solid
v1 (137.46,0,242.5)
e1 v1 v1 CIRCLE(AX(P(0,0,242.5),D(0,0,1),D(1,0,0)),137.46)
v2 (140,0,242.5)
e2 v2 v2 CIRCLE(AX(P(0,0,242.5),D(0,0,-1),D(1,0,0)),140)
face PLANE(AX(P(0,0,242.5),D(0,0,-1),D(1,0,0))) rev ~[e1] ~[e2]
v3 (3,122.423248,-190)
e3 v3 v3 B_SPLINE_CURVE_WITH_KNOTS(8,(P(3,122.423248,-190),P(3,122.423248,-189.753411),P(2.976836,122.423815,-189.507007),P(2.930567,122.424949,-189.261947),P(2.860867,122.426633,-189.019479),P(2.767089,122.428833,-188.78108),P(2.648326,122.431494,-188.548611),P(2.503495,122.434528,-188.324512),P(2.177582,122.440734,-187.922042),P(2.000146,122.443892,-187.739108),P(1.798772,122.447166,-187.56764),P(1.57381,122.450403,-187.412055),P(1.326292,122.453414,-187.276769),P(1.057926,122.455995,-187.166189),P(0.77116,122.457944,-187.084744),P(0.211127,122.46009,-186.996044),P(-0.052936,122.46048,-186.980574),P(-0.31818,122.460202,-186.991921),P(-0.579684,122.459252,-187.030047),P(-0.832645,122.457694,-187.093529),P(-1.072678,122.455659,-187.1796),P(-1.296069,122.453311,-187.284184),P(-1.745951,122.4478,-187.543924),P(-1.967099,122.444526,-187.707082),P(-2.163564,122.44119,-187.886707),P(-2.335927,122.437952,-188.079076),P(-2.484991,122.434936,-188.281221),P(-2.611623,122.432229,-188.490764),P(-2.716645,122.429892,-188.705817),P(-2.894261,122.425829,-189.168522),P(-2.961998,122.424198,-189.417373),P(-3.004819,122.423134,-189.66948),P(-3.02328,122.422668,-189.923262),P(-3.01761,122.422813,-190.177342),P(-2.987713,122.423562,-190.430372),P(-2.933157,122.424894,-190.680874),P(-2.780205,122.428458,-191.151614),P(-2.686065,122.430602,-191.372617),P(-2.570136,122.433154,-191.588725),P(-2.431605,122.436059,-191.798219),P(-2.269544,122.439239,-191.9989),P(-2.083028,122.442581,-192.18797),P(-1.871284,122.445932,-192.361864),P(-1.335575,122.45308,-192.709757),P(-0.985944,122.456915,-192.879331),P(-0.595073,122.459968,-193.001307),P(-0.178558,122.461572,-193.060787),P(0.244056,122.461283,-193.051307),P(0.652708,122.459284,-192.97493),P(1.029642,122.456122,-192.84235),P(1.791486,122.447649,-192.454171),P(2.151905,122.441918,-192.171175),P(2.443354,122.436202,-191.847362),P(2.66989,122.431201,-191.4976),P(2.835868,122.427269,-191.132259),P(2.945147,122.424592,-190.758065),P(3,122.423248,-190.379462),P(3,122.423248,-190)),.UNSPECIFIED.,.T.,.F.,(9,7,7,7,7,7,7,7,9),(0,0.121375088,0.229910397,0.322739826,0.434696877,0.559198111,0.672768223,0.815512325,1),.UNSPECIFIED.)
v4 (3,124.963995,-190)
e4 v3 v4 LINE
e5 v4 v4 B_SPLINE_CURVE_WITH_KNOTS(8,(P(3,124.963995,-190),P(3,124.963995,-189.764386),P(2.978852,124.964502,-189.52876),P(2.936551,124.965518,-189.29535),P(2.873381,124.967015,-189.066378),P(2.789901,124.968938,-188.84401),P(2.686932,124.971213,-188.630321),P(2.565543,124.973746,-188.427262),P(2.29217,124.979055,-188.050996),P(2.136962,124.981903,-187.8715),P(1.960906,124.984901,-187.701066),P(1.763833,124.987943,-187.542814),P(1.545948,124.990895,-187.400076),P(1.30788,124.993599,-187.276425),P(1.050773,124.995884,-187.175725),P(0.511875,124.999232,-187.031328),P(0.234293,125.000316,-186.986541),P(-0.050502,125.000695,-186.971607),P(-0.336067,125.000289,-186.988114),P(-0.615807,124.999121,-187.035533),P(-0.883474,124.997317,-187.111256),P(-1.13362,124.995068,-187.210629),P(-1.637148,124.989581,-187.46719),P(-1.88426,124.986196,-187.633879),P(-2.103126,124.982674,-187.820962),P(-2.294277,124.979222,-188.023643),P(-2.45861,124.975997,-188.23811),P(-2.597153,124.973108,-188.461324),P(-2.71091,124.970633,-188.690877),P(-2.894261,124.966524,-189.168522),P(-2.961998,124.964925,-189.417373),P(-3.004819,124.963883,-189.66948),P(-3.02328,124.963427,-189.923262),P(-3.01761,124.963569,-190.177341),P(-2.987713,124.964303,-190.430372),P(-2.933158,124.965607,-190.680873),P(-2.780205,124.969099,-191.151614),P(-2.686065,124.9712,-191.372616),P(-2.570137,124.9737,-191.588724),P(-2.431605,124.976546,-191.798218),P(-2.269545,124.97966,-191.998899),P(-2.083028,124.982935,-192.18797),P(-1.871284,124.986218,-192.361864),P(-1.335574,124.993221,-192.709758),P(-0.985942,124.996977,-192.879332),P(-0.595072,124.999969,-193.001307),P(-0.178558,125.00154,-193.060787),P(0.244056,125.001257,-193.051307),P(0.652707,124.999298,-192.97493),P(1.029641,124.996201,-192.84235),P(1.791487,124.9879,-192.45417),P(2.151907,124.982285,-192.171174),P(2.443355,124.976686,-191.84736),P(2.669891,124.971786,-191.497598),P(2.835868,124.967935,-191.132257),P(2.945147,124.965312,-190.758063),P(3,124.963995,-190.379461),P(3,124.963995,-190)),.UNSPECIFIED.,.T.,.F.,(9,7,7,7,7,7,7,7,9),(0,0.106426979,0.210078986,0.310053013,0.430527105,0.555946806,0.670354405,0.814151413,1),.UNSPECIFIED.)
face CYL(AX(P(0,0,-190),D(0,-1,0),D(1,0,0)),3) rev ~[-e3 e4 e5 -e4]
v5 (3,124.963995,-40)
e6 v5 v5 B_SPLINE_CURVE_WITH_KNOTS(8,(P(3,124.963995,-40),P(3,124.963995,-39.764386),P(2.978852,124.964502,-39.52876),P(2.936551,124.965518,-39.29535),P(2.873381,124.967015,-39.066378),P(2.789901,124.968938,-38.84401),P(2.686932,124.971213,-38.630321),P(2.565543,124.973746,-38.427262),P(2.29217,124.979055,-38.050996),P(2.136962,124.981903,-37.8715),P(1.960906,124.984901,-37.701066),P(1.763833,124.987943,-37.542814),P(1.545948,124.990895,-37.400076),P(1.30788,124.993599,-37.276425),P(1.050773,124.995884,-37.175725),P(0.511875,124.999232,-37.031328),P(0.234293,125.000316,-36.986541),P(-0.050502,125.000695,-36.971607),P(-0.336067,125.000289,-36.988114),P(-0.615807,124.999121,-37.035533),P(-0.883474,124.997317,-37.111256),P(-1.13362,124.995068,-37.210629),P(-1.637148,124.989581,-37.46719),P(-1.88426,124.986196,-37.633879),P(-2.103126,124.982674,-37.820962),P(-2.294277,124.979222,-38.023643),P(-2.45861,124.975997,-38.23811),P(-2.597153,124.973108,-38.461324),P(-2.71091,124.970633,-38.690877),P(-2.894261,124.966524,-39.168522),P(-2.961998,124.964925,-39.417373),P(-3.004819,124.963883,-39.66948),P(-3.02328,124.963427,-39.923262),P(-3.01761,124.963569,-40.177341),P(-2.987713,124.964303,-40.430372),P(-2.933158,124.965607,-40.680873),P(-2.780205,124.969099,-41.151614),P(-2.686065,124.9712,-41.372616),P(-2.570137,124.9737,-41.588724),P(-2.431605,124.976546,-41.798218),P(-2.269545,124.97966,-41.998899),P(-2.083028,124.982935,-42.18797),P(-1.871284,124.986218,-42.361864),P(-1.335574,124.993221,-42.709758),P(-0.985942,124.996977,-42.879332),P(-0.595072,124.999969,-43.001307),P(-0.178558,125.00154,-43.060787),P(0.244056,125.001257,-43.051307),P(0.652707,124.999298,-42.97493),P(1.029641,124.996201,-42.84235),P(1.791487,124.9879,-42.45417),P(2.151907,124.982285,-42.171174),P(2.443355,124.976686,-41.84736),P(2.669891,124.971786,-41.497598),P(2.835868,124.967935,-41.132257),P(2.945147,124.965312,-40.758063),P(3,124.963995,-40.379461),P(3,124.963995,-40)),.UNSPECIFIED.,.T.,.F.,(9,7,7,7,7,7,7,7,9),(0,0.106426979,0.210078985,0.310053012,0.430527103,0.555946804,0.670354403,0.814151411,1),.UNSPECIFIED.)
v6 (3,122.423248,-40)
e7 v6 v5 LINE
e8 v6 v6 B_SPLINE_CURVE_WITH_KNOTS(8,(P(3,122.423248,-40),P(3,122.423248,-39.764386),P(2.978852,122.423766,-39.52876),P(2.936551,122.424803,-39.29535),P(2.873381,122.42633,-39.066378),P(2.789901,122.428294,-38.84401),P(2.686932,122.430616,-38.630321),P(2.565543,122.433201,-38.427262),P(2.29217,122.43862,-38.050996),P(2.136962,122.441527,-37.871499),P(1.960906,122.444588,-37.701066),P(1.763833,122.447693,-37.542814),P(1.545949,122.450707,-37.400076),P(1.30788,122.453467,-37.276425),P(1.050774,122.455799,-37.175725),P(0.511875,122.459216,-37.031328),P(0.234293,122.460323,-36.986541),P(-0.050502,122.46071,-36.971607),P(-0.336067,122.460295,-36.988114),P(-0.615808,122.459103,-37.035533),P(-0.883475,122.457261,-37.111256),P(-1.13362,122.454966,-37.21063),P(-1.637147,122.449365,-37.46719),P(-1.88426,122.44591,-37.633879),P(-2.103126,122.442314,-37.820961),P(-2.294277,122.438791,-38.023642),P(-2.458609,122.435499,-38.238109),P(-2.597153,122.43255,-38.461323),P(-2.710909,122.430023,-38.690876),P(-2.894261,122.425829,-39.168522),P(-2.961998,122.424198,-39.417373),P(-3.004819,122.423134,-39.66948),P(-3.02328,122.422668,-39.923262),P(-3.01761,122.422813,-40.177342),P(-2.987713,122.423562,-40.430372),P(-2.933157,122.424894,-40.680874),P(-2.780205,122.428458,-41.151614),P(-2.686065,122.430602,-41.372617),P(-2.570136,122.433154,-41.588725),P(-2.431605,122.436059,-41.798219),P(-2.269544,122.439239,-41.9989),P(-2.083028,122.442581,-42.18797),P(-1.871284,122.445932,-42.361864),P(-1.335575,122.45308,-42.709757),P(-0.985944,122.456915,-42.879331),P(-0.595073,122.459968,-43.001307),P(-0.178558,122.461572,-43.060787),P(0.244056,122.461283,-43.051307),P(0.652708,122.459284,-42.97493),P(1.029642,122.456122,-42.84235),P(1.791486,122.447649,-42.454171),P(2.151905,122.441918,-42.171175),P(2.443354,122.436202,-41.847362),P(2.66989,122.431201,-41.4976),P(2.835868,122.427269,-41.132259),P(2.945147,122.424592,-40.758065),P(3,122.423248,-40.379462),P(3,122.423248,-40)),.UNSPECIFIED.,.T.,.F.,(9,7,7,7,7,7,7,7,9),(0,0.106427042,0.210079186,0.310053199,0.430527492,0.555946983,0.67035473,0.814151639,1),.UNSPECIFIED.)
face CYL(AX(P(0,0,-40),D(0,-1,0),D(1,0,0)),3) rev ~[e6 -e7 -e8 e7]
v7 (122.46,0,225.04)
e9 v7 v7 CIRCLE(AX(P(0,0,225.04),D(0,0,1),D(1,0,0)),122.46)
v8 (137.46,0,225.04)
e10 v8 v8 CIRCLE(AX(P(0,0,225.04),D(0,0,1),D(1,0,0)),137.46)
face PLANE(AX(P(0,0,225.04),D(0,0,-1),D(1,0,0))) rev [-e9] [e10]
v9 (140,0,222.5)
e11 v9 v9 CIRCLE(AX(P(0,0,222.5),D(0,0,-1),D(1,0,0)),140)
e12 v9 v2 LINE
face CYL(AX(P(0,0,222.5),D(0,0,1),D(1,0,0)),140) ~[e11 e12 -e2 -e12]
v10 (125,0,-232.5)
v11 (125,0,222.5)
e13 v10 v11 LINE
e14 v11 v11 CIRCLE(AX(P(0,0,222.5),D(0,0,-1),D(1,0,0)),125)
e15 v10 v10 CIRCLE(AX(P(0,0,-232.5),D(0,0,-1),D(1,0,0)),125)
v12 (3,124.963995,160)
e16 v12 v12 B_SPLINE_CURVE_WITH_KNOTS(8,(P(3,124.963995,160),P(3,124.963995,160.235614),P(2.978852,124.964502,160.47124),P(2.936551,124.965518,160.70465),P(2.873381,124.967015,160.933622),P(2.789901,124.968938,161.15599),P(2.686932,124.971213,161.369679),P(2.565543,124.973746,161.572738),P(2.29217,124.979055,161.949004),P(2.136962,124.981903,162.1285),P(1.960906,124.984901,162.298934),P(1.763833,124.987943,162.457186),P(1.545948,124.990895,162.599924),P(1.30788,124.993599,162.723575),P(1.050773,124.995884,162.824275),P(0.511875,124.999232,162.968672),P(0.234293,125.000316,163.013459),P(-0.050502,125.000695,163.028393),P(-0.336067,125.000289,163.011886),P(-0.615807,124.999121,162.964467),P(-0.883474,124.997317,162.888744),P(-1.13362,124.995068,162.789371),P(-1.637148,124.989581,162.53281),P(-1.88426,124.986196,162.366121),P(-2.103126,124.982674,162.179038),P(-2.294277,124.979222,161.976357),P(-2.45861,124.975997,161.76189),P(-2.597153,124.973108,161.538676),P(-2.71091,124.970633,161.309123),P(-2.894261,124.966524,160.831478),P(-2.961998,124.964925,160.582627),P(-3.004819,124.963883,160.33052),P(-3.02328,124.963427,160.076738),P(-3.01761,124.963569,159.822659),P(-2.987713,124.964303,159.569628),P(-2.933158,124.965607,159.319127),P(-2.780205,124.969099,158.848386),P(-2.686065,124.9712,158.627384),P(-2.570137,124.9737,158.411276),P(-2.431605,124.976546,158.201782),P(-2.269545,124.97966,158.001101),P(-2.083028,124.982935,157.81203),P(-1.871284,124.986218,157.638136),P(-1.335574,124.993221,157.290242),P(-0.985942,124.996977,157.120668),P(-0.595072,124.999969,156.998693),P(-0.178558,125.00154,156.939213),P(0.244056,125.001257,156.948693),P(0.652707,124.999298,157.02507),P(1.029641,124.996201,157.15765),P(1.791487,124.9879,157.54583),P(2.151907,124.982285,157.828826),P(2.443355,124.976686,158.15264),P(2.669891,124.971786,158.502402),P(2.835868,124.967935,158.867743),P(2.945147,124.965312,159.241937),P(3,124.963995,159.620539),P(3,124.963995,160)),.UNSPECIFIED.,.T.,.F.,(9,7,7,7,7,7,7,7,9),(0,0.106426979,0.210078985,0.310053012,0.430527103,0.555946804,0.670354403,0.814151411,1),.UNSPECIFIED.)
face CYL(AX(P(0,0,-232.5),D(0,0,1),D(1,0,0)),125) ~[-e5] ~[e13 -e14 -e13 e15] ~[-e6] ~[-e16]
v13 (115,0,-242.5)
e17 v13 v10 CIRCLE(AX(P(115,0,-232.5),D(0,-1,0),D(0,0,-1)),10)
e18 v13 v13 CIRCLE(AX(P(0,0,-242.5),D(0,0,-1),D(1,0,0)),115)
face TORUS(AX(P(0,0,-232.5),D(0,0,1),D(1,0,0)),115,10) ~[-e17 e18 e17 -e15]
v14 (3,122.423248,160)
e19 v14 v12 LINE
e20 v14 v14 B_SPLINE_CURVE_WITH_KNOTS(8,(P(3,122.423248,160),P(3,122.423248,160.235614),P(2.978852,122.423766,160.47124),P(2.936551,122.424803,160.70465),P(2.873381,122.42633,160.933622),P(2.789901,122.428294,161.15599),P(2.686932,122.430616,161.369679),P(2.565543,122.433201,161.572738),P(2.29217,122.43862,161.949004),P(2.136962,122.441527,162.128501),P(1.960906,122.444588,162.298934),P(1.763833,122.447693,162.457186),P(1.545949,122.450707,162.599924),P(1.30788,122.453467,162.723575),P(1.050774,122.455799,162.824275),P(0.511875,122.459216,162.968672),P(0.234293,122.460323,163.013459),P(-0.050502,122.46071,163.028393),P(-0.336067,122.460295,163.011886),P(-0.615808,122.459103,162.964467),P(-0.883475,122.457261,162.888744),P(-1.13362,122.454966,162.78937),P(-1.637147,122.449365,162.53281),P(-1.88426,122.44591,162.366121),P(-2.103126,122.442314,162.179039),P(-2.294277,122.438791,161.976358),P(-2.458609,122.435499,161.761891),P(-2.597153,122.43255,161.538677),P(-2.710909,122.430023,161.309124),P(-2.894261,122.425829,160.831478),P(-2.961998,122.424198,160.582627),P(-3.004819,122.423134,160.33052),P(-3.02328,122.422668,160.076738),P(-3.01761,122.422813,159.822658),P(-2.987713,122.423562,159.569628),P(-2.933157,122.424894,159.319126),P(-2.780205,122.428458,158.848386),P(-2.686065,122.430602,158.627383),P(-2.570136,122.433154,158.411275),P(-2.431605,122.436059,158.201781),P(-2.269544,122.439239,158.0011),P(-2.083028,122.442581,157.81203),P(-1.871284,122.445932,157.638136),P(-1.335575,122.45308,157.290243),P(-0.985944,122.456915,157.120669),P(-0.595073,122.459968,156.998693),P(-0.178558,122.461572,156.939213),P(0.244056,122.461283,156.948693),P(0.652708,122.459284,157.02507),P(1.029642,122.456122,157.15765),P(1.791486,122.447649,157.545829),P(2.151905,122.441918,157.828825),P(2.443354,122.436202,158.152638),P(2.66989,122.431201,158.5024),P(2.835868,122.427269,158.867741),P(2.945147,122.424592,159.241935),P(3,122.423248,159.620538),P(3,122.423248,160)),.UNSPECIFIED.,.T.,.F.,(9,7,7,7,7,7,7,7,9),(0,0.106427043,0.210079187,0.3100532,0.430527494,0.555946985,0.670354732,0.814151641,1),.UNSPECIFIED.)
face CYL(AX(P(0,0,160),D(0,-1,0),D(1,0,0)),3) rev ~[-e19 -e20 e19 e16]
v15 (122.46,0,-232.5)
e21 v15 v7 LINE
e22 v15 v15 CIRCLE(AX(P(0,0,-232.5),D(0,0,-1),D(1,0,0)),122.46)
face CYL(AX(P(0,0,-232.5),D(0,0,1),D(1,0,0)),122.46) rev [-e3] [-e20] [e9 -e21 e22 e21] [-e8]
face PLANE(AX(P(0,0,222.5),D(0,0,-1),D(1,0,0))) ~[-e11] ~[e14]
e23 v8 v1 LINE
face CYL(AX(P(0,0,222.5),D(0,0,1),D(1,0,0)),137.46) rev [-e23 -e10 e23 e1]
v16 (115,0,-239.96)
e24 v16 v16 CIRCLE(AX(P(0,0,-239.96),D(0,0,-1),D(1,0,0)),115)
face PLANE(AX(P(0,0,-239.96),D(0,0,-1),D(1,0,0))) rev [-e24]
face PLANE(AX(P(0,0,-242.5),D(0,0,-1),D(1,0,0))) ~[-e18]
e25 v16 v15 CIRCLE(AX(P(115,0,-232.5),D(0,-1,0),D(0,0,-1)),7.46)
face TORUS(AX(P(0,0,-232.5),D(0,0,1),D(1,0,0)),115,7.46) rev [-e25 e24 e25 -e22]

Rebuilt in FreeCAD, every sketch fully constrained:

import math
import FreeCAD as App
import Part
import Sketcher
from FreeCAD import Vector
Q = App.Units.Quantity


def faces_at(feature, points):
    """Names of the faces that lie closest to the given points."""
    faces = feature.Shape.Faces
    near = lambda p: min(range(len(faces)), key=lambda i: faces[i].distToShape(Part.Vertex(*p))[0])
    return sorted({f"Face{near(p) + 1}" for p in points})

doc = App.newDocument("Part")
body = doc.addObject("PartDesign::Body", "Body")

sketch1 = body.newObject("Sketcher::SketchObject", "Sketch")
sketch1.AttachmentSupport = (doc.getObject("XZ_Plane"), [""])
sketch1.MapMode = "FlatFace"
sketch1.addGeometry(Part.LineSegment(Vector(0, 242, 0), Vector(0, -242, 0)), False)
sketch1.addGeometry(Part.LineSegment(Vector(0, -242, 0), Vector(115, -242, 0)), False)
sketch1.addGeometry(Part.ArcOfCircle(Part.Circle(Vector(115, -232, 0), Vector(0, 0, 1), 10), math.radians(-90), math.radians(0)), False)
sketch1.addGeometry(Part.LineSegment(Vector(125, -232, 0), Vector(125, 222, 0)), False)
sketch1.addGeometry(Part.LineSegment(Vector(125, 222, 0), Vector(140, 222, 0)), False)
sketch1.addGeometry(Part.LineSegment(Vector(140, 222, 0), Vector(140, 242, 0)), False)
sketch1.addGeometry(Part.LineSegment(Vector(140, 242, 0), Vector(0, 242, 0)), False)
sketch1.addConstraint(Sketcher.Constraint("Coincident", 0, 2, 1, 1))
sketch1.addConstraint(Sketcher.Constraint("Tangent", 1, 2, 2, 1))
sketch1.addConstraint(Sketcher.Constraint("Tangent", 2, 2, 3, 1))
sketch1.addConstraint(Sketcher.Constraint("Coincident", 3, 2, 4, 1))
sketch1.addConstraint(Sketcher.Constraint("Coincident", 4, 2, 5, 1))
sketch1.addConstraint(Sketcher.Constraint("Coincident", 5, 2, 6, 1))
sketch1.addConstraint(Sketcher.Constraint("Coincident", 6, 2, 0, 1))
sketch1.addConstraint(Sketcher.Constraint("Vertical", 0))
sketch1.addConstraint(Sketcher.Constraint("Horizontal", 1))
sketch1.addConstraint(Sketcher.Constraint("Vertical", 3))
sketch1.addConstraint(Sketcher.Constraint("Horizontal", 4))
sketch1.addConstraint(Sketcher.Constraint("Vertical", 5))
sketch1.addConstraint(Sketcher.Constraint("Horizontal", 6))
sketch1.addConstraint(Sketcher.Constraint("Symmetric", 0, 2, 6, 2, -1, 1))
sketch1.addConstraint(Sketcher.Constraint("Radius", 2, Q("10 mm")))
sketch1.addConstraint(Sketcher.Constraint("DistanceX", 1, 1, 1, 2, Q("115 mm")))
sketch1.addConstraint(Sketcher.Constraint("DistanceX", 4, 1, 4, 2, Q("15 mm")))
sketch1.addConstraint(Sketcher.Constraint("DistanceY", 0, 2, 0, 1, Q("485 mm")))
sketch1.addConstraint(Sketcher.Constraint("DistanceY", 3, 1, 3, 2, Q("455 mm")))
revolution = body.newObject("PartDesign::Revolution", "Revolution")
revolution.Profile = sketch1
revolution.ReferenceAxis = (sketch1, ["V_Axis"])
revolution.Angle = 360
doc.recompute()

thickness = body.newObject("PartDesign::Thickness", "Thickness")
thickness.Base = (revolution, faces_at(revolution, [(0, 0, 242.5)]))
thickness.Value = 2.54
thickness.Reversed = True
thickness.Join = "Intersection"

sketch2 = body.newObject("Sketcher::SketchObject", "Sketch001")
sketch2.AttachmentSupport = (doc.getObject("XZ_Plane"), [""])
sketch2.MapMode = "FlatFace"
sketch2.addGeometry(Part.Circle(Vector(0, 160, 0), Vector(0, 0, 1), 3), False)
sketch2.addGeometry(Part.Circle(Vector(0, -40, 0), Vector(0, 0, 1), 3), False)
sketch2.addGeometry(Part.Circle(Vector(0, -190, 0), Vector(0, 0, 1), 3), False)
sketch2.addConstraint(Sketcher.Constraint("Equal", 0, 1))
sketch2.addConstraint(Sketcher.Constraint("Equal", 1, 2))
sketch2.addConstraint(Sketcher.Constraint("PointOnObject", 0, 3, -2))
sketch2.addConstraint(Sketcher.Constraint("PointOnObject", 1, 3, -2))
sketch2.addConstraint(Sketcher.Constraint("PointOnObject", 2, 3, -2))
sketch2.addConstraint(Sketcher.Constraint("Diameter", 0, Q("6 mm")))
sketch2.addConstraint(Sketcher.Constraint("DistanceY", -1, 1, 0, 3, Q("160 mm")))
sketch2.addConstraint(Sketcher.Constraint("DistanceY", 1, 3, -1, 1, Q("40 mm")))
sketch2.addConstraint(Sketcher.Constraint("DistanceY", 2, 3, -1, 1, Q("190 mm")))
pocket1 = body.newObject("PartDesign::Pocket", "Pocket")
pocket1.Profile = sketch2
pocket1.Type = "ThroughAll"

doc.recompute()
